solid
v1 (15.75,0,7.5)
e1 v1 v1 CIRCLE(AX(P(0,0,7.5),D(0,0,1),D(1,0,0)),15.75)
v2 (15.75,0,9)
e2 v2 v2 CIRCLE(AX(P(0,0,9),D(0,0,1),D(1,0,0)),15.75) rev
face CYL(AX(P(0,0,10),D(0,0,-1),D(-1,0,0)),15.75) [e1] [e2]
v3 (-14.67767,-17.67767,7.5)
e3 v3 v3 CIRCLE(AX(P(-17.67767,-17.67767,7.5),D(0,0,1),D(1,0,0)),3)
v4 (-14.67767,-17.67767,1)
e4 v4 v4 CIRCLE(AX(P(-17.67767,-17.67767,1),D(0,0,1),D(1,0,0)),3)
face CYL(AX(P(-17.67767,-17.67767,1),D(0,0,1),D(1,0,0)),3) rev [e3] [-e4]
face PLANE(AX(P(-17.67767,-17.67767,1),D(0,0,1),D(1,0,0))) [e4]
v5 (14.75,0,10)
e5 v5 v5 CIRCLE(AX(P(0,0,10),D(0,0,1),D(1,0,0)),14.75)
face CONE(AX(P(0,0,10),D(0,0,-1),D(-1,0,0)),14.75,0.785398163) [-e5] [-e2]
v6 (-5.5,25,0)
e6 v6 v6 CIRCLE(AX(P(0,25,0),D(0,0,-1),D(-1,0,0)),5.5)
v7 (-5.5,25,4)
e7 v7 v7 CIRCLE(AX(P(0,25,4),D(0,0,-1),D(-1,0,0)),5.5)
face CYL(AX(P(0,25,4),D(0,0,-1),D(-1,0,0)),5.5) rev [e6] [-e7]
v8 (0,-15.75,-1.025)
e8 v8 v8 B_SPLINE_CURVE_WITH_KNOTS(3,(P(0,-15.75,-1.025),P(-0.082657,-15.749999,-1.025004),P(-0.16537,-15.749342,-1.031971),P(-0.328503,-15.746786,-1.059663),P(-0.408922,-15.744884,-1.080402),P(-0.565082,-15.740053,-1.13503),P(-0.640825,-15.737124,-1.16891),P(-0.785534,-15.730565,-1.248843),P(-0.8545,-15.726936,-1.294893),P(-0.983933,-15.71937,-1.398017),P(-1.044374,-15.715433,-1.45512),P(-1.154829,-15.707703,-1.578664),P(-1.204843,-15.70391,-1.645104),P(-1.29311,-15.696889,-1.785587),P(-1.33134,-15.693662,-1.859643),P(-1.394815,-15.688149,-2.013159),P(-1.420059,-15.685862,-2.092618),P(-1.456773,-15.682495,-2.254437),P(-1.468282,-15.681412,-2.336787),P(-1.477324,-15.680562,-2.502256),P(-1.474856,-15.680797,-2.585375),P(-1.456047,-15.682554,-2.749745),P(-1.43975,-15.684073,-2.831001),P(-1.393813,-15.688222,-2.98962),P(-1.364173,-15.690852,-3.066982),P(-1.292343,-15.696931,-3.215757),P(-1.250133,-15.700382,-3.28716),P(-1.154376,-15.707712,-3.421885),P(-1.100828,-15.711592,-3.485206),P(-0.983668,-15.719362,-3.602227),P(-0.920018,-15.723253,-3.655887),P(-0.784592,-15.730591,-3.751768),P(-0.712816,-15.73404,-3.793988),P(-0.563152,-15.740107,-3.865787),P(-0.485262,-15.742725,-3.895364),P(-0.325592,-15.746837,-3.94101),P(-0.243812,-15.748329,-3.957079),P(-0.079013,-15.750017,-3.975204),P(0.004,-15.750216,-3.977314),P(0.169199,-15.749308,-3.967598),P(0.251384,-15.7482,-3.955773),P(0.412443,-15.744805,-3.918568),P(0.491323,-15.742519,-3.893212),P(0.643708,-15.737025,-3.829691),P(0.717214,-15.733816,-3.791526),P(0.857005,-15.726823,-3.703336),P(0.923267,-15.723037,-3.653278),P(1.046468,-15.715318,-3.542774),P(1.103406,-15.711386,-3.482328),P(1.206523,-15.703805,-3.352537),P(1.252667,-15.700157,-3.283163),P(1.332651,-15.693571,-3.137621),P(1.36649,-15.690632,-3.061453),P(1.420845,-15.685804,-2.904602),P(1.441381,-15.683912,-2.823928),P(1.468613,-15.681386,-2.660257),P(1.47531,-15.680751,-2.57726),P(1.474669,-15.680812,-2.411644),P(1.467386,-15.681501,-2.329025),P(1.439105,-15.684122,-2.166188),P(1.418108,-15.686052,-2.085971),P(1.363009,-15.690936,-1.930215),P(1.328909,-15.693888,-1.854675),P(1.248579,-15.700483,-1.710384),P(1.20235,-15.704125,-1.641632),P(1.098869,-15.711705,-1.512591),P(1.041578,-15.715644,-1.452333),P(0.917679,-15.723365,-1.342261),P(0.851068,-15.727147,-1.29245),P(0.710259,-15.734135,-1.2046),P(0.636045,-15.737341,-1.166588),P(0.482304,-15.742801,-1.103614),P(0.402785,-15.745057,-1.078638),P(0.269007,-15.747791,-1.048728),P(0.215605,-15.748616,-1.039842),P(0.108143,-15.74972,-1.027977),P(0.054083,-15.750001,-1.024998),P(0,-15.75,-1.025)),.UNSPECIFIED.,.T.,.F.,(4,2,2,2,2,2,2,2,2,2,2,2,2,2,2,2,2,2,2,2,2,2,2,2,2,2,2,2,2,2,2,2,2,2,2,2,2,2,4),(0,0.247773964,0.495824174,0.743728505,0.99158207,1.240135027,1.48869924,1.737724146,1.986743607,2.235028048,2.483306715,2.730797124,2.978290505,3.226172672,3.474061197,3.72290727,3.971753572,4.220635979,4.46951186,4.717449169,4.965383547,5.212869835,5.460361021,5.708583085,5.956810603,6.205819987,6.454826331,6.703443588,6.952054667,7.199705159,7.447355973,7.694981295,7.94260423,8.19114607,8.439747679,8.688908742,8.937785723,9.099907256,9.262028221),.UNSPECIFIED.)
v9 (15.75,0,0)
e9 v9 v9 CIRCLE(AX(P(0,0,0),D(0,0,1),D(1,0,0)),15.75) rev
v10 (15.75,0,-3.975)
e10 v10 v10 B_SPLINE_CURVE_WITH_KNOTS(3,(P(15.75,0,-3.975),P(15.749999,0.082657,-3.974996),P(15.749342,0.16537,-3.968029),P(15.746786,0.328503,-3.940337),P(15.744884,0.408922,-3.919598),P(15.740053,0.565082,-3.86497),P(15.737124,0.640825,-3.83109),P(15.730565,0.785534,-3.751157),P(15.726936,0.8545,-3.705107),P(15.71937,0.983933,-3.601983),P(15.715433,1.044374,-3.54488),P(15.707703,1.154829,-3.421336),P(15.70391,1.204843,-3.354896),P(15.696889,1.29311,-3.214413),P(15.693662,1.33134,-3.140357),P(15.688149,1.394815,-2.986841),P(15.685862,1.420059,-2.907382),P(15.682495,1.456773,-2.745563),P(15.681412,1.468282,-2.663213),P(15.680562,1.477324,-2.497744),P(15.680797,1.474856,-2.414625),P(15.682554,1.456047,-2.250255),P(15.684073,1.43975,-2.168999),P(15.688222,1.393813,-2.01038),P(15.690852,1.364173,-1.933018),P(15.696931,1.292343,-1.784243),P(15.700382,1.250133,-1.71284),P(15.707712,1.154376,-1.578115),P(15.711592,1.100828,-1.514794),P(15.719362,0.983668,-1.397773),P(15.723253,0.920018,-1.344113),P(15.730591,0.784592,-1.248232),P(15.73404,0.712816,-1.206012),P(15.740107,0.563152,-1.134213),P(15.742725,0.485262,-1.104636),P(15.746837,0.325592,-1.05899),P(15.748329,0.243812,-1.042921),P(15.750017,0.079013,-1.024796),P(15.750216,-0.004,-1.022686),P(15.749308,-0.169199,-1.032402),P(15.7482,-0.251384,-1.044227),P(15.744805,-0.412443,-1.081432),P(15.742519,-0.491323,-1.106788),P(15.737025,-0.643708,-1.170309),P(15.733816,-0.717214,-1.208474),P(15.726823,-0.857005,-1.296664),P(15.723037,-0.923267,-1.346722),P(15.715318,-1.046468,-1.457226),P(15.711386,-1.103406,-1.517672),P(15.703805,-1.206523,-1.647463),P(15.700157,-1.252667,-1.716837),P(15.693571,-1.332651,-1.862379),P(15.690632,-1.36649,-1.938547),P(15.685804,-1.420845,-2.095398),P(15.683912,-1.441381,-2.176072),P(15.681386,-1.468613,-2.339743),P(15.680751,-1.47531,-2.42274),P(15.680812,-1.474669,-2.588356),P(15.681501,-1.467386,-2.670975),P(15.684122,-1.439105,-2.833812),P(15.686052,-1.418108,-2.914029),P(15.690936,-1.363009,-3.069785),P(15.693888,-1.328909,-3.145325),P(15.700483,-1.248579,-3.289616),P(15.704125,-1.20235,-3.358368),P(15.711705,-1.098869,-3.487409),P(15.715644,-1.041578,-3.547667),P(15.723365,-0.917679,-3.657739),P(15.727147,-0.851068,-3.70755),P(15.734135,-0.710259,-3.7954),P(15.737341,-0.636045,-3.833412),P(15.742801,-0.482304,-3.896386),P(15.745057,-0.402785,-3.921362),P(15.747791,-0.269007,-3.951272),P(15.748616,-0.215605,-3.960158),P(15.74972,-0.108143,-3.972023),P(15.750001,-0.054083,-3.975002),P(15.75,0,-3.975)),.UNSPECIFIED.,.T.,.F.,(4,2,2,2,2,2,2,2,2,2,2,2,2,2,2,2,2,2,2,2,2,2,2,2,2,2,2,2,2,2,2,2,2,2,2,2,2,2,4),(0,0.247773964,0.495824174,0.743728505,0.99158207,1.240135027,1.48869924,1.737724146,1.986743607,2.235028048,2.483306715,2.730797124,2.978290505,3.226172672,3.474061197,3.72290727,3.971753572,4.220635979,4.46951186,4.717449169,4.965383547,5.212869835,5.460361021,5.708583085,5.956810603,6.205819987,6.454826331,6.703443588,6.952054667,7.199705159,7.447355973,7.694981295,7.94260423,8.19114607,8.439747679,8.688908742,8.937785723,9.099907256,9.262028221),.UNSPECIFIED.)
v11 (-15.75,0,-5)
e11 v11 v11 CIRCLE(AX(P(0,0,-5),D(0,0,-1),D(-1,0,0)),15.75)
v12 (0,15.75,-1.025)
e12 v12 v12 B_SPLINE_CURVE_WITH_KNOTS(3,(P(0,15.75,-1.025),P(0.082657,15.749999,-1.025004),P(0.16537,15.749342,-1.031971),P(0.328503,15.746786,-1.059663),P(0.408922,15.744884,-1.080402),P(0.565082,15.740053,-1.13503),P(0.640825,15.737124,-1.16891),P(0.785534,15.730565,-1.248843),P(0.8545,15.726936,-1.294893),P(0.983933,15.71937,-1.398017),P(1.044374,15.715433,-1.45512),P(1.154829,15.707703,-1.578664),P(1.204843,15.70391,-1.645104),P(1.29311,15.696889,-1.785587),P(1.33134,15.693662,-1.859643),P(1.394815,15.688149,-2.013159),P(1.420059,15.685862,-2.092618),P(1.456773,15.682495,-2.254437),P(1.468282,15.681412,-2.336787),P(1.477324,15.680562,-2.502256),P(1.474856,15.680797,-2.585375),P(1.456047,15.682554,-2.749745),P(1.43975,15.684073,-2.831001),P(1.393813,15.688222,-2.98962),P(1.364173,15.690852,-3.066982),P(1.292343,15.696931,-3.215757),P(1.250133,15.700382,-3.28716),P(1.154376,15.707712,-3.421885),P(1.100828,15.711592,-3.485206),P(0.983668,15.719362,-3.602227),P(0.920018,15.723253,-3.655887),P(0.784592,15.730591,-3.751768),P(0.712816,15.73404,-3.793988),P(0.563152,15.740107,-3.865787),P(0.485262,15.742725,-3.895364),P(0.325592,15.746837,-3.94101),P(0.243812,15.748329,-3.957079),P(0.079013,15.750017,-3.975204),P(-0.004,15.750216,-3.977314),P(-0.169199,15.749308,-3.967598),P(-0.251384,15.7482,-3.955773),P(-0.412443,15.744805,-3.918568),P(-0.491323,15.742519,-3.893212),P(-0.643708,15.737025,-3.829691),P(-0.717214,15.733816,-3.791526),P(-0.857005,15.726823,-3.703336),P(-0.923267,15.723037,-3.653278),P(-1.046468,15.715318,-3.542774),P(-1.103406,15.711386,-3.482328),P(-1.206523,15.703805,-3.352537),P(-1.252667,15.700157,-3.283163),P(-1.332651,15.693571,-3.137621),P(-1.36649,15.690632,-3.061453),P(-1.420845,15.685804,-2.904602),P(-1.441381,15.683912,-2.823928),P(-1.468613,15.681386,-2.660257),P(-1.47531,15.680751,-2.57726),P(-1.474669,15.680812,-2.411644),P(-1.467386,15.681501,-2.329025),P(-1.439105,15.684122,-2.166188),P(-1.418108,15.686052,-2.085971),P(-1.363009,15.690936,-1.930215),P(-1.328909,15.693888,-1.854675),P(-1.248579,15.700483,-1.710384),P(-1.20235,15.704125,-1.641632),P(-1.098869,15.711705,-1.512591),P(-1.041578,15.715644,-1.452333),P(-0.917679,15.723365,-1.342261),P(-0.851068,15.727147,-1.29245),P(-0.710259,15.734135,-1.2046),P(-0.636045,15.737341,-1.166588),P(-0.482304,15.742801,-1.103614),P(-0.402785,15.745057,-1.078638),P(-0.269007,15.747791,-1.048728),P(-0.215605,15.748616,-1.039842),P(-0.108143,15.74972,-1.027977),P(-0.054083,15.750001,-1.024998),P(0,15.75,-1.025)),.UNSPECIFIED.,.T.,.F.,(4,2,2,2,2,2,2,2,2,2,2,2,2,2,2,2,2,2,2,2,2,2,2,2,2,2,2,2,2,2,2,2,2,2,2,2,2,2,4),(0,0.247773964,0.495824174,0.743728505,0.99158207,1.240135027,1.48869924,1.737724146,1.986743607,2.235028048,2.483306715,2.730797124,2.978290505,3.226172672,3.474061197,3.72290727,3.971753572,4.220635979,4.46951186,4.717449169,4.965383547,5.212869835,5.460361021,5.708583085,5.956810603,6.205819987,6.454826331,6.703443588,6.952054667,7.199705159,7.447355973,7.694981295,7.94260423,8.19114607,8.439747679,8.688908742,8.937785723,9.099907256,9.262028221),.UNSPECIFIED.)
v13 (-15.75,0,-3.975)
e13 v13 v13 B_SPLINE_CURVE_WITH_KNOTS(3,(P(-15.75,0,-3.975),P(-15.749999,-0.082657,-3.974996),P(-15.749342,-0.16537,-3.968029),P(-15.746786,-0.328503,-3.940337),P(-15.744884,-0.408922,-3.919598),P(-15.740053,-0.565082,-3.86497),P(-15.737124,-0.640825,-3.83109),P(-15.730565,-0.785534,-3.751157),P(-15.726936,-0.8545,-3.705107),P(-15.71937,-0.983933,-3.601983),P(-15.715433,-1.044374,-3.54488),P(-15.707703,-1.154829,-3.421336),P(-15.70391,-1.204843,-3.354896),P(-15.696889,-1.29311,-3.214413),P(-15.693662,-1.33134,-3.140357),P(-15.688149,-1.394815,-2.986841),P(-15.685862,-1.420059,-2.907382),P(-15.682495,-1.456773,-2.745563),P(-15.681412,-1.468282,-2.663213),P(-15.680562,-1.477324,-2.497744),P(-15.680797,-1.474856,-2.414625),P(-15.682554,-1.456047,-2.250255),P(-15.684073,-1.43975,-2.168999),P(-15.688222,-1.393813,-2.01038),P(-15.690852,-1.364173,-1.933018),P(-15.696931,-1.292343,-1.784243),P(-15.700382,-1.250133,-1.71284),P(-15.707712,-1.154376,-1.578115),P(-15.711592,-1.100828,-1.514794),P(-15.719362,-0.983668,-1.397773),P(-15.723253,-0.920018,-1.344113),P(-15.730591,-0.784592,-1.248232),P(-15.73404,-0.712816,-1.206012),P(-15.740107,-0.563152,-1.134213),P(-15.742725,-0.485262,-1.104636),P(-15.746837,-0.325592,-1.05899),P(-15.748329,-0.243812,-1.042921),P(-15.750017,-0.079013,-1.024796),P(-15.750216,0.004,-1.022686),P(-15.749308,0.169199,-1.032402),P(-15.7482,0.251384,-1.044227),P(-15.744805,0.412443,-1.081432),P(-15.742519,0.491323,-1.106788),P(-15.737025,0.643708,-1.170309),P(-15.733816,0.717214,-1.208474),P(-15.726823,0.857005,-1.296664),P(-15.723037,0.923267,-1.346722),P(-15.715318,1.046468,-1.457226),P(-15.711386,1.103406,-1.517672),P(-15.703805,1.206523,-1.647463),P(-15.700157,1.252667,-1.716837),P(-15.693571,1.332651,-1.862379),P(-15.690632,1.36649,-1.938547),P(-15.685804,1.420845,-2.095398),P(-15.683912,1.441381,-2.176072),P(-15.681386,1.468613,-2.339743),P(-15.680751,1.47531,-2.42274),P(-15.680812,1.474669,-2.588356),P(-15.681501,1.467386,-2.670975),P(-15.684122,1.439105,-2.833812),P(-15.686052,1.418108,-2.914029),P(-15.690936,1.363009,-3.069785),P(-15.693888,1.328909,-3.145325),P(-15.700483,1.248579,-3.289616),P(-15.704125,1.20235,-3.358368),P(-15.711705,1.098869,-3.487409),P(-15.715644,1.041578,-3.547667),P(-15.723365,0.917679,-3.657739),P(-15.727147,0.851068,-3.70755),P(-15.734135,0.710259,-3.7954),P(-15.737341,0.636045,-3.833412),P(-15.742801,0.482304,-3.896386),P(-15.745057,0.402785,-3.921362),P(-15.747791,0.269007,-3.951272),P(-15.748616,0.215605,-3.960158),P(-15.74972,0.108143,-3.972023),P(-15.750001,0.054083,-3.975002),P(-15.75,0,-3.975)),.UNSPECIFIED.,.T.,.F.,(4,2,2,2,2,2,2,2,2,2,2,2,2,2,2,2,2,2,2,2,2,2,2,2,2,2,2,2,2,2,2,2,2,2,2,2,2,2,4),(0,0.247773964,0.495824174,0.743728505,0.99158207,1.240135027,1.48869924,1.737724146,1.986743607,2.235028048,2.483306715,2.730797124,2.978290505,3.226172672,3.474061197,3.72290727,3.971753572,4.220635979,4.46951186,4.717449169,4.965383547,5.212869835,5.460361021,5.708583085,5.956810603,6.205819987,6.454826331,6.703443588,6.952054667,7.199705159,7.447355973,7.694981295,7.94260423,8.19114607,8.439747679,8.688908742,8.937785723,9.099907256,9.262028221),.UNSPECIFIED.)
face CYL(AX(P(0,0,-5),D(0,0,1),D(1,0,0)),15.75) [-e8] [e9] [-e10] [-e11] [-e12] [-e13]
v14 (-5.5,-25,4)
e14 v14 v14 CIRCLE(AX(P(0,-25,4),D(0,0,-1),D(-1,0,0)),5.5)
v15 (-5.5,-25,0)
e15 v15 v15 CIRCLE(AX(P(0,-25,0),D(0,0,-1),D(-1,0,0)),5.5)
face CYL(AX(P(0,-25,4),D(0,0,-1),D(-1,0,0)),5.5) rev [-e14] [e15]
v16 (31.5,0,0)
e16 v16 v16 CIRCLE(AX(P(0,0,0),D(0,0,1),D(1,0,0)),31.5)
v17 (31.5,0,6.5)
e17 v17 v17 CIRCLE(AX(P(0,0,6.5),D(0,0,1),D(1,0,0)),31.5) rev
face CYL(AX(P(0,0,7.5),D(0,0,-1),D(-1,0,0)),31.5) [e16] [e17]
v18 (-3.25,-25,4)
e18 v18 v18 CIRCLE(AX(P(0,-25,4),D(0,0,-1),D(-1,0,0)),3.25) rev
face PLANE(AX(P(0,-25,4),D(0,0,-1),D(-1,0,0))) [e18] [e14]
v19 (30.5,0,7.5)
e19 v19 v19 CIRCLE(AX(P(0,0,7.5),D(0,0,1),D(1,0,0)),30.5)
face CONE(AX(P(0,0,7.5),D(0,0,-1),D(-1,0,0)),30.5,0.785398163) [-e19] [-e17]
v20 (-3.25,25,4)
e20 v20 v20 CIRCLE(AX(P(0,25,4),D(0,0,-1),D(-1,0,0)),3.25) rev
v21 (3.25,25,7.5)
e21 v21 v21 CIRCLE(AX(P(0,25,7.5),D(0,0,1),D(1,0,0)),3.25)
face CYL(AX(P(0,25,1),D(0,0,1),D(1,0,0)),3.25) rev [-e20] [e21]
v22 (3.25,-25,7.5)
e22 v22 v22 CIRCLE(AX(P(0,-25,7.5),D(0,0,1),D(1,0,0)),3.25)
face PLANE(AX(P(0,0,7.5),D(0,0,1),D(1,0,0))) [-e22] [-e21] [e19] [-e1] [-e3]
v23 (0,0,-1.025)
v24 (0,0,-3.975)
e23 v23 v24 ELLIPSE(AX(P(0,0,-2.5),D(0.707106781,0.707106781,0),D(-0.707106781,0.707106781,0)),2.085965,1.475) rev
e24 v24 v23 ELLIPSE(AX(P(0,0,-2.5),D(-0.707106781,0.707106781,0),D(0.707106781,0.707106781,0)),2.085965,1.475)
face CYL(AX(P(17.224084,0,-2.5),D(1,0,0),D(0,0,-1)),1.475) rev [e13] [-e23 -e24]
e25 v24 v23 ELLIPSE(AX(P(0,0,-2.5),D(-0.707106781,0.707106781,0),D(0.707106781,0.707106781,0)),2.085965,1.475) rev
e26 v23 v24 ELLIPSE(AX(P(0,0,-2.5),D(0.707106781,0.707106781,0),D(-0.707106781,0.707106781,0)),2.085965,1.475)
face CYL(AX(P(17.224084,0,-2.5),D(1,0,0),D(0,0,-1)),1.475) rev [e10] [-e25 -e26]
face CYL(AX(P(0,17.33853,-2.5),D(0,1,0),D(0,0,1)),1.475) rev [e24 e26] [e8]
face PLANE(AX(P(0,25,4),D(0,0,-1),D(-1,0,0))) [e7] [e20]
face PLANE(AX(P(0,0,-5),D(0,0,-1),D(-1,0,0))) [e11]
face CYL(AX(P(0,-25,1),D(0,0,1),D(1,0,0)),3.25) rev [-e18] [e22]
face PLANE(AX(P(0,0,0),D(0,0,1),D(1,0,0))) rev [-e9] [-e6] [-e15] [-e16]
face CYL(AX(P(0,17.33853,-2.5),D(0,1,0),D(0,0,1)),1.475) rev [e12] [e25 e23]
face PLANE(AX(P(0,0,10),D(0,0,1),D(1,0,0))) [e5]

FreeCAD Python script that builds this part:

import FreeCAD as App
import Part
import Sketcher
from FreeCAD import Vector
Q = App.Units.Quantity


def edges_at(feature, points):
    """Names of the edges that pass closest to the given points."""
    edges = feature.Shape.Edges
    near = lambda p: min(range(len(edges)), key=lambda i: edges[i].distToShape(Part.Vertex(*p))[0])
    return sorted({f"Edge{near(p) + 1}" for p in points})


def add_polygon(sketch, points):
    """Adds a closed chain of lines whose ends are joined by coincident constraints."""
    first, n = sketch.GeometryCount, len(points)
    for a, b in zip(points, points[1:] + points[:1]):
        sketch.addGeometry(Part.LineSegment(App.Vector(*a, 0), App.Vector(*b, 0)), False)
    for i in range(n):
        sketch.addConstraint(Sketcher.Constraint("Coincident", first + i, 2, first + (i + 1) % n, 1))

doc = App.newDocument("Part")
body = doc.addObject("PartDesign::Body", "Body")

# Sketch on XY plane
sketch1 = doc.addObject("Sketcher::SketchObject", "Sketch")
body.addObject(sketch1)
sketch1.AttachmentSupport = (doc.XY_Plane, [""])
sketch1.MapMode = "FlatFace"
sketch1.addGeometry(Part.Circle(Vector(0, 0, 0), Vector(0, 0, 1), 32), False)
sketch1.addConstraint(Sketcher.Constraint("Coincident", 0, 3, -1, 1))
sketch1.addConstraint(Sketcher.Constraint("Diameter", 0, Q("63 mm")))
pad1 = doc.addObject("PartDesign::Pad", "Pad")
body.addObject(pad1)
pad1.Profile = sketch1
pad1.Length = 7.5

# Sketch on XY plane
sketch2 = doc.addObject("Sketcher::SketchObject", "Sketch001")
body.addObject(sketch2)
sketch2.AttachmentSupport = (doc.XY_Plane, [""])
sketch2.MapMode = "FlatFace"
sketch2.AttachmentOffset = App.Placement(Vector(0, 0, 7.5), App.Rotation())
sketch2.addGeometry(Part.Circle(Vector(0, 0, 0), Vector(0, 0, 1), 16), False)
sketch2.addConstraint(Sketcher.Constraint("Coincident", 0, 3, -1, 1))
sketch2.addConstraint(Sketcher.Constraint("Diameter", 0, Q("31.5 mm")))
pad2 = doc.addObject("PartDesign::Pad", "Pad001")
body.addObject(pad2)
pad2.Profile = sketch2
pad2.Length = 2.5
doc.recompute()

chamfer = doc.addObject("PartDesign::Chamfer", "Chamfer")
body.addObject(chamfer)
chamfer.Base = (pad2, edges_at(pad2, [(-15.75, 0, 10)]))
chamfer.Size = 1
doc.recompute()

chamfer2 = doc.addObject("PartDesign::Chamfer", "Chamfer001")
body.addObject(chamfer2)
chamfer2.Base = (chamfer, edges_at(chamfer, [(-31.5, 0, 7.5)]))
chamfer2.Size = 1

# Sketch on XY plane
sketch3 = doc.addObject("Sketcher::SketchObject", "Sketch002")
body.addObject(sketch3)
sketch3.AttachmentSupport = (doc.XY_Plane, [""])
sketch3.MapMode = "FlatFace"
sketch3.AttachmentOffset = App.Placement(Vector(0, 0, 7.5), App.Rotation())
sketch3.addGeometry(Part.Circle(Vector(0, 25, 0), Vector(0, 0, 1), 3.2), False)
sketch3.addGeometry(Part.Circle(Vector(0, -25, 0), Vector(0, 0, 1), 3.2), False)
sketch3.addGeometry(Part.Circle(Vector(-17.7, -17.7, 0), Vector(0, 0, 1), 3), False)
sketch3.addConstraint(Sketcher.Constraint("Equal", 0, 1))
sketch3.addConstraint(Sketcher.Constraint("Symmetric", 0, 3, 1, 3, -1, 1))
sketch3.addConstraint(Sketcher.Constraint("PointOnObject", 0, 3, -2))
sketch3.addConstraint(Sketcher.Constraint("Diameter", 2, Q("6 mm")))
sketch3.addConstraint(Sketcher.Constraint("Diameter", 0, Q("6.5 mm")))
sketch3.addConstraint(Sketcher.Constraint("DistanceY", -1, 1, 0, 3, Q("25 mm")))
sketch3.addConstraint(Sketcher.Constraint("DistanceX", 2, 3, -1, 1, Q("17.67767 mm")))
sketch3.addConstraint(Sketcher.Constraint("DistanceY", 2, 3, -1, 1, Q("17.67767 mm")))
pocket1 = doc.addObject("PartDesign::Pocket", "Pocket")
body.addObject(pocket1)
pocket1.Profile = sketch3
pocket1.Length = 6.5

# Sketch on XY plane
sketch4 = doc.addObject("Sketcher::SketchObject", "Sketch003")
body.addObject(sketch4)
sketch4.AttachmentSupport = (doc.XY_Plane, [""])
sketch4.MapMode = "FlatFace"
sketch4.addGeometry(Part.Circle(Vector(0, -25, 0), Vector(0, 0, 1), 6), False)
sketch4.addGeometry(Part.Circle(Vector(0, 25, 0), Vector(0, 0, 1), 6), False)
sketch4.addConstraint(Sketcher.Constraint("Equal", 0, 1))
sketch4.addConstraint(Sketcher.Constraint("Symmetric", 0, 3, 1, 3, -1, 1))
sketch4.addConstraint(Sketcher.Constraint("PointOnObject", 0, 3, -2))
sketch4.addConstraint(Sketcher.Constraint("Diameter", 0, Q("11 mm")))
sketch4.addConstraint(Sketcher.Constraint("DistanceY", 0, 3, -1, 1, Q("25 mm")))
pocket2 = doc.addObject("PartDesign::Pocket", "Pocket001")
body.addObject(pocket2)
pocket2.Profile = sketch4
pocket2.Length = 4
pocket2.Reversed = True

# Sketch on XY plane
sketch5 = doc.addObject("Sketcher::SketchObject", "Sketch004")
body.addObject(sketch5)
sketch5.AttachmentSupport = (doc.XY_Plane, [""])
sketch5.MapMode = "FlatFace"
sketch5.addGeometry(Part.Circle(Vector(0, 0, 0), Vector(0, 0, 1), 16), False)
sketch5.addConstraint(Sketcher.Constraint("Coincident", 0, 3, -1, 1))
sketch5.addConstraint(Sketcher.Constraint("Diameter", 0, Q("31.5 mm")))
pad3 = doc.addObject("PartDesign::Pad", "Pad002")
body.addObject(pad3)
pad3.Profile = sketch5
pad3.Length = 5
pad3.Reversed = True

# Sketch on XY plane
sketch6 = doc.addObject("Sketcher::SketchObject", "Sketch005")
body.addObject(sketch6)
sketch6.AttachmentSupport = (doc.XY_Plane, [""])
sketch6.MapMode = "FlatFace"
sketch6.AttachmentOffset = App.Placement(Vector(0, 0, -2.5), App.Rotation())
add_polygon(sketch6, [(0, 17.3), (0, -17.3), (-1.5, -17.3), (-1.5, 17.3)])  # lines 0-3
sketch6.addConstraint(Sketcher.Constraint("Vertical", 0))
sketch6.addConstraint(Sketcher.Constraint("Horizontal", 1))
sketch6.addConstraint(Sketcher.Constraint("Vertical", 2))
sketch6.addConstraint(Sketcher.Constraint("Horizontal", 3))
sketch6.addConstraint(Sketcher.Constraint("PointOnObject", 0, 2, -2))
sketch6.addConstraint(Sketcher.Constraint("DistanceX", 1, 2, 1, 1, Q("1.475 mm")))
sketch6.addConstraint(Sketcher.Constraint("DistanceY", 0, 2, 0, 1, Q("34.619836 mm")))
sketch6.addConstraint(Sketcher.Constraint("DistanceY", -1, 1, 2, 2, Q("17.33853 mm")))
groove = doc.addObject("PartDesign::Groove", "Groove")
body.addObject(groove)
groove.Profile = sketch6
groove.ReferenceAxis = (sketch6, ["V_Axis"])
groove.Angle = 360

# Sketch on XY plane
sketch7 = doc.addObject("Sketcher::SketchObject", "Sketch006")
body.addObject(sketch7)
sketch7.AttachmentSupport = (doc.XY_Plane, [""])
sketch7.MapMode = "FlatFace"
sketch7.AttachmentOffset = App.Placement(Vector(0, 0, -2.5), App.Rotation())
add_polygon(sketch7, [(17.2, 1.5), (17.2, 0), (-17.2, 0), (-17.2, 1.5)])  # lines 0-3
sketch7.addConstraint(Sketcher.Constraint("Vertical", 0))
sketch7.addConstraint(Sketcher.Constraint("Horizontal", 1))
sketch7.addConstraint(Sketcher.Constraint("Vertical", 2))
sketch7.addConstraint(Sketcher.Constraint("Horizontal", 3))
sketch7.addConstraint(Sketcher.Constraint("PointOnObject", 0, 2, -1))
sketch7.addConstraint(Sketcher.Constraint("DistanceY", 0, 2, 0, 1, Q("1.475 mm")))
sketch7.addConstraint(Sketcher.Constraint("DistanceX", 1, 2, 1, 1, Q("34.390945 mm")))
sketch7.addConstraint(Sketcher.Constraint("DistanceX", 1, 2, -1, 1, Q("17.166861 mm")))
groove2 = doc.addObject("PartDesign::Groove", "Groove001")
body.addObject(groove2)
groove2.Profile = sketch7
groove2.ReferenceAxis = (sketch7, ["H_Axis"])
groove2.Angle = 360

doc.recompute()
